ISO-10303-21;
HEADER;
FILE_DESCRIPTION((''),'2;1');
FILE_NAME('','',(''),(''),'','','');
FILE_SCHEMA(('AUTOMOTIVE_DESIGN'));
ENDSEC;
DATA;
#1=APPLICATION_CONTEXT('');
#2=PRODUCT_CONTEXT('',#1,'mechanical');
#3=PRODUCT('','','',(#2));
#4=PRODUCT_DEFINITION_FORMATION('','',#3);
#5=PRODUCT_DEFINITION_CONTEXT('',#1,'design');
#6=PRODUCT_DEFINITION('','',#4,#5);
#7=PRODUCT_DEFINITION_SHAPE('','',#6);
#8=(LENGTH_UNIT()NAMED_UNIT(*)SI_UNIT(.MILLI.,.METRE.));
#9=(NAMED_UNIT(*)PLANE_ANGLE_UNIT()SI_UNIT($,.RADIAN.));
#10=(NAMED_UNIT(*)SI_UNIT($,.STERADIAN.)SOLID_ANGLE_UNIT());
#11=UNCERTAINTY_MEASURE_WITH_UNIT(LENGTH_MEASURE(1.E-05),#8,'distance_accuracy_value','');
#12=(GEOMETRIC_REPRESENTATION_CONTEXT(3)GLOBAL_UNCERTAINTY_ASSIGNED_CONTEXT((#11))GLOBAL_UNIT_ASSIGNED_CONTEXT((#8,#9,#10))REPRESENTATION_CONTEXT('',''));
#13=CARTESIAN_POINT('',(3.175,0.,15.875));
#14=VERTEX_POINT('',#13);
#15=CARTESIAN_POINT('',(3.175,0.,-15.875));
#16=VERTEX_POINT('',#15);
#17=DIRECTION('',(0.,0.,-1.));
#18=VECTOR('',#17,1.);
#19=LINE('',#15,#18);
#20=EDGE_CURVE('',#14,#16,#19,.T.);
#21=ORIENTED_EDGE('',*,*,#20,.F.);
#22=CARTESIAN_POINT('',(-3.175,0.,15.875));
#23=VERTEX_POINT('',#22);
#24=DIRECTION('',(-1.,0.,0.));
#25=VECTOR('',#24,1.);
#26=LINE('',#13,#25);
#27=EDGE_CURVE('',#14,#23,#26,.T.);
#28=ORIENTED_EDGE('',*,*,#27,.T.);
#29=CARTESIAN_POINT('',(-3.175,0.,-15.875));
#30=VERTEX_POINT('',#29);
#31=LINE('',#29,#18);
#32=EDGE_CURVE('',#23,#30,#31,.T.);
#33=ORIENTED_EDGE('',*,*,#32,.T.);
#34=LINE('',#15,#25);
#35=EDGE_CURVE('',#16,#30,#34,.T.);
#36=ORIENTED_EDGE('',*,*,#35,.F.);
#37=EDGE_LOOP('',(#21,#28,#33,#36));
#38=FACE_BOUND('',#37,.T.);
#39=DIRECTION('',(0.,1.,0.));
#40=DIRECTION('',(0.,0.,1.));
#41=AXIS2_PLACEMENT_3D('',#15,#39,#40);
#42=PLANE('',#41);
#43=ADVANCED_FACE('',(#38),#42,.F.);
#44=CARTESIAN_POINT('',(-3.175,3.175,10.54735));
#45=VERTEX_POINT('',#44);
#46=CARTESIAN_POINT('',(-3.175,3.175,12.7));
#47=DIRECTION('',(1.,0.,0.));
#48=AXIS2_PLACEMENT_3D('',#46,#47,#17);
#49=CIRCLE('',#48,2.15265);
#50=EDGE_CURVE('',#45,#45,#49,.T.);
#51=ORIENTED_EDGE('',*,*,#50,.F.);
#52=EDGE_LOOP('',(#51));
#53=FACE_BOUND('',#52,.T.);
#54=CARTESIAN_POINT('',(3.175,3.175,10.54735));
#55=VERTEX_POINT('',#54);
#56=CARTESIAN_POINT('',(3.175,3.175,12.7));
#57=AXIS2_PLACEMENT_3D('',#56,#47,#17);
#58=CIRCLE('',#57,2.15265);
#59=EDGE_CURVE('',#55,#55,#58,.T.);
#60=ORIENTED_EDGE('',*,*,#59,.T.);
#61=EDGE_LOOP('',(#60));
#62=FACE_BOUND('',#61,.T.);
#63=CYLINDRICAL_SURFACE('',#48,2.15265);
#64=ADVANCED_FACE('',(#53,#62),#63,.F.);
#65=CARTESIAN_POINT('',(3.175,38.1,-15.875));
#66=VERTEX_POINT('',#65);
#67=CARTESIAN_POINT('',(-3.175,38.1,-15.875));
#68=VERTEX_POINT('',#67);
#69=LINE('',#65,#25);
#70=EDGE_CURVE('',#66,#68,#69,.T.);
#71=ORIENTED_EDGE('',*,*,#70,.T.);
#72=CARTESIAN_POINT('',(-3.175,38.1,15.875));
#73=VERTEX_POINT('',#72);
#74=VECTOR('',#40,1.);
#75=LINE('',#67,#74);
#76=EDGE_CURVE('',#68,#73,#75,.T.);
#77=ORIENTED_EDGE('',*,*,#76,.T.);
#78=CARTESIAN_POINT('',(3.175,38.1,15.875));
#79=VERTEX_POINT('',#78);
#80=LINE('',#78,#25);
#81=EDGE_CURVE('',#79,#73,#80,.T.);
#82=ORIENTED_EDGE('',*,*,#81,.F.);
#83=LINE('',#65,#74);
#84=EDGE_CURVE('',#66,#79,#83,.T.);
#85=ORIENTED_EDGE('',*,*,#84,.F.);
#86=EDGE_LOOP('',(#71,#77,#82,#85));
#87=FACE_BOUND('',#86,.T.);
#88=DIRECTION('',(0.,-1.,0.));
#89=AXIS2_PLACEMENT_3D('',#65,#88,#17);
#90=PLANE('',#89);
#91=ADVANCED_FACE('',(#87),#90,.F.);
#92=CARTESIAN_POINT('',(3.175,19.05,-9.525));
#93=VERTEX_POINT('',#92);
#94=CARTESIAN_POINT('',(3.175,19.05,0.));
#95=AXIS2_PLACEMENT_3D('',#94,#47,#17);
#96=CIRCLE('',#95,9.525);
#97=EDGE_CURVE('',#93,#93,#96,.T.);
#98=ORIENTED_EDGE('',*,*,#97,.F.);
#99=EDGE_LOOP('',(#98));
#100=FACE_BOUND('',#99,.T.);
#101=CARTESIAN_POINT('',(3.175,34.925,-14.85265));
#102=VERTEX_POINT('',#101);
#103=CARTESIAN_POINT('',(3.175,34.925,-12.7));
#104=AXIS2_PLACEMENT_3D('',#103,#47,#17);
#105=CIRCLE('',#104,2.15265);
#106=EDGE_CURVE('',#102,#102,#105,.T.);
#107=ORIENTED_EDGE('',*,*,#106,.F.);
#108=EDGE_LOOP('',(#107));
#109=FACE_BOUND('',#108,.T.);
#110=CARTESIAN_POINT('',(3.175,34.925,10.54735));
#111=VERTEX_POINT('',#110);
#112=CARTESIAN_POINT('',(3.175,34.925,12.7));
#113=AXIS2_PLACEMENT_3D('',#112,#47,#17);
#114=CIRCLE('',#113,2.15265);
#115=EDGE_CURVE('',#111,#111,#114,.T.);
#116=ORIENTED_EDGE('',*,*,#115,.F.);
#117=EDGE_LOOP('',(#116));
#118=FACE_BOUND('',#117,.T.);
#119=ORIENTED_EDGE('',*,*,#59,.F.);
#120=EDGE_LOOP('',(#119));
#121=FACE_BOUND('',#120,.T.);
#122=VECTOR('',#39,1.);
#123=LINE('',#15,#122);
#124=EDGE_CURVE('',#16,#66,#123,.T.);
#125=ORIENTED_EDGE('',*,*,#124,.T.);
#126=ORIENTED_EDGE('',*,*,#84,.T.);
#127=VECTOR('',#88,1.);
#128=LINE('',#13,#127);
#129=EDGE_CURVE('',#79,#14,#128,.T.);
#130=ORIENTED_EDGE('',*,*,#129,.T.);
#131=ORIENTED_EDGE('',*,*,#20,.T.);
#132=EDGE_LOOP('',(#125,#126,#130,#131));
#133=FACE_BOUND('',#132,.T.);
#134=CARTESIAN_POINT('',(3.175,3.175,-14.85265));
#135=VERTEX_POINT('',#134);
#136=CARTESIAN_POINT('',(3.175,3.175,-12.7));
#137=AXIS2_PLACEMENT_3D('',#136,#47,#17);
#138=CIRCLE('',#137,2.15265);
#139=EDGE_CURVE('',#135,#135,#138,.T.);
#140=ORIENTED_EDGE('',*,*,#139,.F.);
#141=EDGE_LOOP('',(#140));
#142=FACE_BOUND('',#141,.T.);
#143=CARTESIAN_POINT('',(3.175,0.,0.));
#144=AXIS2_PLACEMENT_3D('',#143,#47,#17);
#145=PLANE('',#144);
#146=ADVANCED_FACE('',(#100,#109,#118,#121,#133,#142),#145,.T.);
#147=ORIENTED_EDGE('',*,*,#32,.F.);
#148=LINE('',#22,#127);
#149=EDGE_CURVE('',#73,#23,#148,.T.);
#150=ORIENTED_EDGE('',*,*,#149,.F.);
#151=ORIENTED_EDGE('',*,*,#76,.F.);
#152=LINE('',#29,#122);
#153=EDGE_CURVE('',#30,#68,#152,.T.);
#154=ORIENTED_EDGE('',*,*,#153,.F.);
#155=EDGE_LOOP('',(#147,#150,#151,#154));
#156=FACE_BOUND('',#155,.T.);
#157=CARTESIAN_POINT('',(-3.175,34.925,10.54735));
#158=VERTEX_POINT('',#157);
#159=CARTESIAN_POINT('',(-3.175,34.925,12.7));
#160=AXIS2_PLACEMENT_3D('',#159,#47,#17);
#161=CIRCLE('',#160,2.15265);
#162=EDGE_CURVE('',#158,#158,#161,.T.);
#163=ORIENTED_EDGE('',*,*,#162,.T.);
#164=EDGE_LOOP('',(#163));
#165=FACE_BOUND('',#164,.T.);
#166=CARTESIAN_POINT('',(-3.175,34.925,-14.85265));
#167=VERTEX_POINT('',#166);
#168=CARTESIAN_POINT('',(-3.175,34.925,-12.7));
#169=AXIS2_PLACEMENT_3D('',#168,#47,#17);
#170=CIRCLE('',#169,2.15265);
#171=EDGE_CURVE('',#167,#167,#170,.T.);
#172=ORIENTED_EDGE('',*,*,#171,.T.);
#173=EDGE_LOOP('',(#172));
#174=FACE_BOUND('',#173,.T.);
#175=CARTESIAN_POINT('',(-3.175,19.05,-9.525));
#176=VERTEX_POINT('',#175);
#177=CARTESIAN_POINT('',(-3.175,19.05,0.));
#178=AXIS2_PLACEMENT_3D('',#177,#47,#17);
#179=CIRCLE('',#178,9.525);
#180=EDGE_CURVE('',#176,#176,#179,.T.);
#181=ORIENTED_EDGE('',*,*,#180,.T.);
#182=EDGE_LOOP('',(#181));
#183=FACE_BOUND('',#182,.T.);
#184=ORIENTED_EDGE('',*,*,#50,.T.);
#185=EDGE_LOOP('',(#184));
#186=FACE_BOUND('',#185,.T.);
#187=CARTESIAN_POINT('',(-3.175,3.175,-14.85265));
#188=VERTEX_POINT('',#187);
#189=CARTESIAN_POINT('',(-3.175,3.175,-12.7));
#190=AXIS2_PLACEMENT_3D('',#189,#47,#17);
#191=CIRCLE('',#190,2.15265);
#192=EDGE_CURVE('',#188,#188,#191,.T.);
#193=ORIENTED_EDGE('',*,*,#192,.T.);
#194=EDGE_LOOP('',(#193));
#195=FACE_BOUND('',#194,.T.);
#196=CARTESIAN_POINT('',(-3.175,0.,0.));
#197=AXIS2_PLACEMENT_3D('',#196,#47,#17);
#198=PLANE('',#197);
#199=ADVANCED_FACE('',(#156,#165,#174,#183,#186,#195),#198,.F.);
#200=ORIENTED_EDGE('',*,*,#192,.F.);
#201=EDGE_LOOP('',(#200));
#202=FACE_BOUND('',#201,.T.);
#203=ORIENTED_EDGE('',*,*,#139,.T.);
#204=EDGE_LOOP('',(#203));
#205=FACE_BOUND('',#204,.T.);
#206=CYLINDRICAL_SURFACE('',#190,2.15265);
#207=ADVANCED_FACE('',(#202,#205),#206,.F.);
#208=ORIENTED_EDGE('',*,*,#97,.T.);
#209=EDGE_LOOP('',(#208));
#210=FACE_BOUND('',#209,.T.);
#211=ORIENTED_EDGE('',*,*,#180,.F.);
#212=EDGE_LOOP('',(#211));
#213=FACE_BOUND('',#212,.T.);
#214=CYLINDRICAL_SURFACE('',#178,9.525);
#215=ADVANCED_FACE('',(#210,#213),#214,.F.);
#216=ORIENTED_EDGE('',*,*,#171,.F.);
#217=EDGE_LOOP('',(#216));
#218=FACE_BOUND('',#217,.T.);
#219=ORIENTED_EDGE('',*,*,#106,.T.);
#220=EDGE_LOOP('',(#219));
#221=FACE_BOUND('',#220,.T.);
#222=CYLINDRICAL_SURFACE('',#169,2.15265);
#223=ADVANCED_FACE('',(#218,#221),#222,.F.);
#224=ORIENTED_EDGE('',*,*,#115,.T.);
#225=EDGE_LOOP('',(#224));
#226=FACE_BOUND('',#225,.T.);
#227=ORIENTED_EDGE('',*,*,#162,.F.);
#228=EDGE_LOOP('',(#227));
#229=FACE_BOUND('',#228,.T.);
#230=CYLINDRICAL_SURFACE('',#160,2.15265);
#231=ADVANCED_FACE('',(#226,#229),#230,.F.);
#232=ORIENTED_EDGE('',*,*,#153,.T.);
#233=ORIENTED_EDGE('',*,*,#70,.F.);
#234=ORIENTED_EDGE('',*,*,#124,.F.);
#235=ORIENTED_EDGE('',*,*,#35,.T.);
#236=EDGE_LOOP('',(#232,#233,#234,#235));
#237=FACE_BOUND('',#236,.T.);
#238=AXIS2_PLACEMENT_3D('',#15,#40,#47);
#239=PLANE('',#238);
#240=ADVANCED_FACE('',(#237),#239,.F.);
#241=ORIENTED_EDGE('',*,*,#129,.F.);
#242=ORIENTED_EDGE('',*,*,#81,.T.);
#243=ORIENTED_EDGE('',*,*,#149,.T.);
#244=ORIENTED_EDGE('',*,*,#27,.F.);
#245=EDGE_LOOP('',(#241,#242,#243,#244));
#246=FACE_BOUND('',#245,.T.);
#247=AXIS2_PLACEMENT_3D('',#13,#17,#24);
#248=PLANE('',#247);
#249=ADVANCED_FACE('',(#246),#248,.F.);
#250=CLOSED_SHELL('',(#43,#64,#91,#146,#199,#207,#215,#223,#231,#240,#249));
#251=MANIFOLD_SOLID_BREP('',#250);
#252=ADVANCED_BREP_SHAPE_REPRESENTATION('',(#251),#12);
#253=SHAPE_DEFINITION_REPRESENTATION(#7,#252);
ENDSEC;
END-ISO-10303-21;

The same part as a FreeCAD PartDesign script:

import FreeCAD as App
import Part
import Sketcher
Q = App.Units.Quantity

doc = App.newDocument("Part")
body = doc.addObject("PartDesign::Body", "Body")

# Sketch on YZ plane
sketch1 = body.newObject("Sketcher::SketchObject", "Sketch")
sketch1.AttachmentSupport = (doc.getObject("YZ_Plane"), [""])
sketch1.MapMode = "FlatFace"
sketch1.addGeometry(Part.LineSegment(App.Vector(38, 16, 0), App.Vector(0, 16, 0)), False)
sketch1.addGeometry(Part.LineSegment(App.Vector(0, 16, 0), App.Vector(0, -16, 0)), False)
sketch1.addGeometry(Part.LineSegment(App.Vector(0, -16, 0), App.Vector(38, -16, 0)), False)
sketch1.addGeometry(Part.LineSegment(App.Vector(38, -16, 0), App.Vector(38, 16, 0)), False)
sketch1.addConstraint(Sketcher.Constraint("Coincident", 0, 2, 1, 1))
sketch1.addConstraint(Sketcher.Constraint("Coincident", 1, 2, 2, 1))
sketch1.addConstraint(Sketcher.Constraint("Coincident", 2, 2, 3, 1))
sketch1.addConstraint(Sketcher.Constraint("Coincident", 3, 2, 0, 1))
sketch1.addConstraint(Sketcher.Constraint("Horizontal", 0))
sketch1.addConstraint(Sketcher.Constraint("Vertical", 1))
sketch1.addConstraint(Sketcher.Constraint("Horizontal", 2))
sketch1.addConstraint(Sketcher.Constraint("Vertical", 3))
sketch1.addConstraint(Sketcher.Constraint("Symmetric", 0, 2, 1, 2, -1, 1))
sketch1.addConstraint(Sketcher.Constraint("DistanceX", 0, 2, 0, 1, Q("1.5 in")))
sketch1.addConstraint(Sketcher.Constraint("DistanceY", 1, 2, 1, 1, Q("1.25 in")))
pad1 = body.newObject("PartDesign::Pad", "Pad")
pad1.Profile = sketch1
pad1.Length = Q("0.25 in")
pad1.Midplane = True

# Sketch on YZ plane
sketch2 = body.newObject("Sketcher::SketchObject", "Sketch001")
sketch2.AttachmentSupport = (doc.getObject("YZ_Plane"), [""])
sketch2.MapMode = "FlatFace"
sketch2.AttachmentOffset = App.Placement(App.Vector(0, 0, 0.125 * 25.4), App.Rotation())
sketch2.addGeometry(Part.Circle(App.Vector(3.2, 12.7, 0), App.Vector(0, 0, 1), 2.2), False)
sketch2.addGeometry(Part.Circle(App.Vector(34.9, 12.7, 0), App.Vector(0, 0, 1), 2.2), False)
sketch2.addGeometry(Part.Circle(App.Vector(3.2, -12.7, 0), App.Vector(0, 0, 1), 2.2), False)
sketch2.addGeometry(Part.Circle(App.Vector(34.9, -12.7, 0), App.Vector(0, 0, 1), 2.2), False)
sketch2.addConstraint(Sketcher.Constraint("Equal", 0, 1))
sketch2.addConstraint(Sketcher.Constraint("Equal", 1, 2))
sketch2.addConstraint(Sketcher.Constraint("Equal", 2, 3))
sketch2.addConstraint(Sketcher.Constraint("Symmetric", 0, 3, 2, 3, -1))
sketch2.addConstraint(Sketcher.Constraint("Symmetric", 1, 3, 3, 3, -1))
sketch2.addConstraint(Sketcher.Constraint("Horizontal", 0, 3, 1, 3))
sketch2.addConstraint(Sketcher.Constraint("DistanceY", 2, 3, 0, 3, Q("1 in")))
sketch2.addConstraint(Sketcher.Constraint("Diameter", 0, Q("0.1695 in")))
sketch2.addConstraint(Sketcher.Constraint("DistanceX", 0, 3, 1, 3, Q("1.25 in")))
sketch2.addConstraint(Sketcher.Constraint("DistanceX", -1, 1, 0, 3, Q("0.125 in")))
pocket1 = body.newObject("PartDesign::Pocket", "Pocket")
pocket1.Profile = sketch2
pocket1.Type = "ThroughAll"

# Sketch on YZ plane
sketch3 = body.newObject("Sketcher::SketchObject", "Sketch002")
sketch3.AttachmentSupport = (doc.getObject("YZ_Plane"), [""])
sketch3.MapMode = "FlatFace"
sketch3.AttachmentOffset = App.Placement(App.Vector(0, 0, 0.125 * 25.4), App.Rotation())
sketch3.addGeometry(Part.Circle(App.Vector(19, 0, 0), App.Vector(0, 0, 1), 10), False)
sketch3.addConstraint(Sketcher.Constraint("PointOnObject", 0, 3, -1))
sketch3.addConstraint(Sketcher.Constraint("Diameter", 0, Q("0.75 in")))
sketch3.addConstraint(Sketcher.Constraint("DistanceX", -1, 1, 0, 3, Q("0.75 in")))
pocket2 = body.newObject("PartDesign::Pocket", "Pocket001")
pocket2.Profile = sketch3
pocket2.Type = "ThroughAll"

doc.recompute()
